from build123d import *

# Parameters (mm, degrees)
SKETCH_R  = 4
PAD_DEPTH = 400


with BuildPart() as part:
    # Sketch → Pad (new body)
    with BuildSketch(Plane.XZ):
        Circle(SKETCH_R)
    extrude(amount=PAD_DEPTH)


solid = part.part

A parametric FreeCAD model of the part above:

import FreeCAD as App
import Part
import Sketcher
Q = App.Units.Quantity

doc = App.newDocument("Part")
body = doc.addObject("PartDesign::Body", "Body")

# Sketch on XZ plane
sketch1 = body.newObject("Sketcher::SketchObject", "Sketch")
sketch1.AttachmentSupport = (doc.getObject("XZ_Plane"), [""])
sketch1.MapMode = "FlatFace"
sketch1.addGeometry(Part.Circle(App.Vector(0, 0, 0), App.Vector(0, 0, 1), 4), False)
sketch1.addConstraint(Sketcher.Constraint("Coincident", 0, 3, -1, 1))
sketch1.addConstraint(Sketcher.Constraint("Diameter", 0, Q("8 mm")))
pad1 = body.newObject("PartDesign::Pad", "Pad")
pad1.Profile = sketch1
pad1.Length = 400

doc.recompute()
